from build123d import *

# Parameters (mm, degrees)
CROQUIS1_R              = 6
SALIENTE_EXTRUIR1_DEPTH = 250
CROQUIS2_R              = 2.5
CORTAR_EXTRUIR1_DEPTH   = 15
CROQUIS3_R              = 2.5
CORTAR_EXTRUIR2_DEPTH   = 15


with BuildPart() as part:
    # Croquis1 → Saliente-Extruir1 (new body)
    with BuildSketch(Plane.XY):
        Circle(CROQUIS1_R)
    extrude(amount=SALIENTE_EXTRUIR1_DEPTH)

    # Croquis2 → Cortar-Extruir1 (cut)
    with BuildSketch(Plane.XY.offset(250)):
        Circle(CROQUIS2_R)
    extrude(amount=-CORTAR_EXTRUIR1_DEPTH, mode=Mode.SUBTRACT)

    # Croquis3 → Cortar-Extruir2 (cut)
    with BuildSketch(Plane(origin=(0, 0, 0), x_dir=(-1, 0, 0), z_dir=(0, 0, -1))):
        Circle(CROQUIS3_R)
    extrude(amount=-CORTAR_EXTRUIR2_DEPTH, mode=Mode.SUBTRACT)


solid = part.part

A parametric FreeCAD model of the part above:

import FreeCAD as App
import Part
import Sketcher

V = App.Vector
Q = App.Units.Quantity

doc = App.newDocument("Part")
body = doc.addObject("PartDesign::Body", "Body")

sketch1 = doc.addObject("Sketcher::SketchObject", "Sketch")
body.addObject(sketch1)
sketch1.AttachmentSupport = (doc.XY_Plane, [""])
sketch1.MapMode = "FlatFace"
sketch1.addGeometry(Part.Circle(V(0, 0, 0), V(0, 0, 1), 6), False)
sketch1.addConstraint([
    Sketcher.Constraint("Coincident", 0, 3, -1, 1),
    Sketcher.Constraint("Diameter", 0, Q("12 mm")),
])
pad1 = doc.addObject("PartDesign::Pad", "Pad")
body.addObject(pad1)
pad1.Profile = sketch1
pad1.Length = 250

sketch2 = doc.addObject("Sketcher::SketchObject", "Sketch001")
body.addObject(sketch2)
sketch2.AttachmentSupport = (doc.XY_Plane, [""])
sketch2.MapMode = "FlatFace"
sketch2.AttachmentOffset = App.Placement(V(0, 0, 250), App.Rotation())
sketch2.addGeometry(Part.Circle(V(0, 0, 0), V(0, 0, 1), 2.5), False)
sketch2.addConstraint([
    Sketcher.Constraint("Coincident", 0, 3, -1, 1),
    Sketcher.Constraint("Diameter", 0, Q("5 mm")),
])
pocket1 = doc.addObject("PartDesign::Pocket", "Pocket")
body.addObject(pocket1)
pocket1.Profile = sketch2
pocket1.Length = 15

sketch3 = doc.addObject("Sketcher::SketchObject", "Sketch002")
body.addObject(sketch3)
sketch3.AttachmentSupport = (doc.XY_Plane, [""])
sketch3.MapMode = "FlatFace"
sketch3.addGeometry(Part.Circle(V(0, 0, 0), V(0, 0, 1), 2.5), False)
sketch3.addConstraint([
    Sketcher.Constraint("Coincident", 0, 3, -1, 1),
    Sketcher.Constraint("Diameter", 0, Q("5 mm")),
])
pocket2 = doc.addObject("PartDesign::Pocket", "Pocket001")
body.addObject(pocket2)
pocket2.Profile = sketch3
pocket2.Length = 15
pocket2.Reversed = True

doc.recompute()
